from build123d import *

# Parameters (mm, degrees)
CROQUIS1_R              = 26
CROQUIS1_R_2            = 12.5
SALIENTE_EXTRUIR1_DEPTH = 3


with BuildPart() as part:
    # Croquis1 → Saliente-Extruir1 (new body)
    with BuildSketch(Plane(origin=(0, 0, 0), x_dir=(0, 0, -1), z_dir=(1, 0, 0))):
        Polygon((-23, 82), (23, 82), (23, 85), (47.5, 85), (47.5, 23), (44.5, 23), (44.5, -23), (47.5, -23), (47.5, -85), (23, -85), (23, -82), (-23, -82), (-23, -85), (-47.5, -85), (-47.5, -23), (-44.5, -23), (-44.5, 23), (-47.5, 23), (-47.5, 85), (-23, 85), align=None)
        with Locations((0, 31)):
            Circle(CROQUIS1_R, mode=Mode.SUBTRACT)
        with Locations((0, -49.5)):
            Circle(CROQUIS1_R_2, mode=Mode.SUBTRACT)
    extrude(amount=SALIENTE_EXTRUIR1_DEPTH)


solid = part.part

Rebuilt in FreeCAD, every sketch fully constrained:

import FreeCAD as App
import Part
import Sketcher

V = App.Vector

doc = App.newDocument("Part")
body = doc.addObject("PartDesign::Body", "Body")

sketch1 = body.newObject("Sketcher::SketchObject", "Sketch")
sketch1.AttachmentSupport = (doc.getObject("YZ_Plane"), [""])
sketch1.MapMode = "FlatFace"
sketch1.addGeometry([
    Part.LineSegment(V(82, -23, 0), V(82, 23, 0)),
    Part.LineSegment(V(82, 23, 0), V(85, 23, 0)),
    Part.LineSegment(V(85, 23, 0), V(85, 47.5, 0)),
    Part.LineSegment(V(85, 47.5, 0), V(23, 47.5, 0)),
    Part.LineSegment(V(23, 47.5, 0), V(23, 44.5, 0)),
    Part.LineSegment(V(23, 44.5, 0), V(-23, 44.5, 0)),
    Part.LineSegment(V(-23, 44.5, 0), V(-23, 47.5, 0)),
    Part.LineSegment(V(-23, 47.5, 0), V(-85, 47.5, 0)),
    Part.LineSegment(V(-85, 47.5, 0), V(-85, 23, 0)),
    Part.LineSegment(V(-85, 23, 0), V(-82, 23, 0)),
    Part.LineSegment(V(-82, 23, 0), V(-82, -23, 0)),
    Part.LineSegment(V(-82, -23, 0), V(-85, -23, 0)),
    Part.LineSegment(V(-85, -23, 0), V(-85, -47.5, 0)),
    Part.LineSegment(V(-85, -47.5, 0), V(-23, -47.5, 0)),
    Part.LineSegment(V(-23, -47.5, 0), V(-23, -44.5, 0)),
    Part.LineSegment(V(-23, -44.5, 0), V(23, -44.5, 0)),
    Part.LineSegment(V(23, -44.5, 0), V(23, -47.5, 0)),
    Part.LineSegment(V(23, -47.5, 0), V(85, -47.5, 0)),
    Part.LineSegment(V(85, -47.5, 0), V(85, -23, 0)),
    Part.LineSegment(V(85, -23, 0), V(82, -23, 0)),
    Part.Circle(V(-49.5, 0, 0), V(0, 0, 1), 12.5),
    Part.Circle(V(31, 0, 0), V(0, 0, 1), 26),
], False)
sketch1.addConstraint([
    Sketcher.Constraint("Coincident", 0, 2, 1, 1),
    Sketcher.Constraint("Coincident", 1, 2, 2, 1),
    Sketcher.Constraint("Coincident", 2, 2, 3, 1),
    Sketcher.Constraint("Coincident", 3, 2, 4, 1),
    Sketcher.Constraint("Coincident", 4, 2, 5, 1),
    Sketcher.Constraint("Coincident", 5, 2, 6, 1),
    Sketcher.Constraint("Coincident", 6, 2, 7, 1),
    Sketcher.Constraint("Coincident", 7, 2, 8, 1),
    Sketcher.Constraint("Coincident", 8, 2, 9, 1),
    Sketcher.Constraint("Coincident", 9, 2, 10, 1),
    Sketcher.Constraint("Coincident", 10, 2, 11, 1),
    Sketcher.Constraint("Coincident", 11, 2, 12, 1),
    Sketcher.Constraint("Coincident", 12, 2, 13, 1),
    Sketcher.Constraint("Coincident", 13, 2, 14, 1),
    Sketcher.Constraint("Coincident", 14, 2, 15, 1),
    Sketcher.Constraint("Coincident", 15, 2, 16, 1),
    Sketcher.Constraint("Coincident", 16, 2, 17, 1),
    Sketcher.Constraint("Coincident", 17, 2, 18, 1),
    Sketcher.Constraint("Coincident", 18, 2, 19, 1),
    Sketcher.Constraint("Coincident", 19, 2, 0, 1),
    Sketcher.Constraint("Vertical", 0),
    Sketcher.Constraint("Horizontal", 1),
    Sketcher.Constraint("Vertical", 2),
    Sketcher.Constraint("Horizontal", 3),
    Sketcher.Constraint("Vertical", 4),
    Sketcher.Constraint("Horizontal", 5),
    Sketcher.Constraint("Vertical", 6),
    Sketcher.Constraint("Horizontal", 7),
    Sketcher.Constraint("Vertical", 8),
    Sketcher.Constraint("Horizontal", 9),
    Sketcher.Constraint("Vertical", 10),
    Sketcher.Constraint("Horizontal", 11),
    Sketcher.Constraint("Vertical", 12),
    Sketcher.Constraint("Horizontal", 13),
    Sketcher.Constraint("Vertical", 14),
    Sketcher.Constraint("Horizontal", 15),
    Sketcher.Constraint("Vertical", 16),
    Sketcher.Constraint("Horizontal", 17),
    Sketcher.Constraint("Vertical", 18),
    Sketcher.Constraint("Horizontal", 19),
    Sketcher.Constraint("Symmetric", 0, 2, 10, 2, -1, 1),
    Sketcher.Constraint("Symmetric", 2, 2, 12, 2, -1, 1),
    Sketcher.Constraint("Symmetric", 4, 2, 14, 2, -1, 1),
    Sketcher.Constraint("Symmetric", 6, 2, 16, 2, -1, 1),
    Sketcher.Constraint("Symmetric", 8, 2, 18, 2, -1, 1),
    Sketcher.Constraint("Symmetric", 3, 2, 6, 2, -2),
    Sketcher.Constraint("Symmetric", 1, 2, 8, 2, -2),
    Sketcher.Constraint("PointOnObject", 20, 3, -1),
    Sketcher.Constraint("PointOnObject", 21, 3, -1),
    Sketcher.Constraint("Equal", 15, 0),
    Sketcher.Constraint("Equal", 19, 4),
    Sketcher.Constraint("Diameter", 20, 25.0),
    Sketcher.Constraint("Diameter", 21, 52.0),
    Sketcher.Constraint("DistanceX", 1, 1, 1, 2, 3.0),
    Sketcher.Constraint("DistanceX", 3, 2, 3, 1, 62.0),
    Sketcher.Constraint("DistanceX", 5, 2, 5, 1, 46.0),
    Sketcher.Constraint("DistanceY", 2, 1, 2, 2, 24.5),
    Sketcher.Constraint("DistanceX", -1, 1, 21, 3, 31.0),
    Sketcher.Constraint("DistanceX", 20, 3, -1, 1, 49.5),
])
pad1 = body.newObject("PartDesign::Pad", "Pad")
pad1.Profile = sketch1
pad1.Length = 3

doc.recompute()
